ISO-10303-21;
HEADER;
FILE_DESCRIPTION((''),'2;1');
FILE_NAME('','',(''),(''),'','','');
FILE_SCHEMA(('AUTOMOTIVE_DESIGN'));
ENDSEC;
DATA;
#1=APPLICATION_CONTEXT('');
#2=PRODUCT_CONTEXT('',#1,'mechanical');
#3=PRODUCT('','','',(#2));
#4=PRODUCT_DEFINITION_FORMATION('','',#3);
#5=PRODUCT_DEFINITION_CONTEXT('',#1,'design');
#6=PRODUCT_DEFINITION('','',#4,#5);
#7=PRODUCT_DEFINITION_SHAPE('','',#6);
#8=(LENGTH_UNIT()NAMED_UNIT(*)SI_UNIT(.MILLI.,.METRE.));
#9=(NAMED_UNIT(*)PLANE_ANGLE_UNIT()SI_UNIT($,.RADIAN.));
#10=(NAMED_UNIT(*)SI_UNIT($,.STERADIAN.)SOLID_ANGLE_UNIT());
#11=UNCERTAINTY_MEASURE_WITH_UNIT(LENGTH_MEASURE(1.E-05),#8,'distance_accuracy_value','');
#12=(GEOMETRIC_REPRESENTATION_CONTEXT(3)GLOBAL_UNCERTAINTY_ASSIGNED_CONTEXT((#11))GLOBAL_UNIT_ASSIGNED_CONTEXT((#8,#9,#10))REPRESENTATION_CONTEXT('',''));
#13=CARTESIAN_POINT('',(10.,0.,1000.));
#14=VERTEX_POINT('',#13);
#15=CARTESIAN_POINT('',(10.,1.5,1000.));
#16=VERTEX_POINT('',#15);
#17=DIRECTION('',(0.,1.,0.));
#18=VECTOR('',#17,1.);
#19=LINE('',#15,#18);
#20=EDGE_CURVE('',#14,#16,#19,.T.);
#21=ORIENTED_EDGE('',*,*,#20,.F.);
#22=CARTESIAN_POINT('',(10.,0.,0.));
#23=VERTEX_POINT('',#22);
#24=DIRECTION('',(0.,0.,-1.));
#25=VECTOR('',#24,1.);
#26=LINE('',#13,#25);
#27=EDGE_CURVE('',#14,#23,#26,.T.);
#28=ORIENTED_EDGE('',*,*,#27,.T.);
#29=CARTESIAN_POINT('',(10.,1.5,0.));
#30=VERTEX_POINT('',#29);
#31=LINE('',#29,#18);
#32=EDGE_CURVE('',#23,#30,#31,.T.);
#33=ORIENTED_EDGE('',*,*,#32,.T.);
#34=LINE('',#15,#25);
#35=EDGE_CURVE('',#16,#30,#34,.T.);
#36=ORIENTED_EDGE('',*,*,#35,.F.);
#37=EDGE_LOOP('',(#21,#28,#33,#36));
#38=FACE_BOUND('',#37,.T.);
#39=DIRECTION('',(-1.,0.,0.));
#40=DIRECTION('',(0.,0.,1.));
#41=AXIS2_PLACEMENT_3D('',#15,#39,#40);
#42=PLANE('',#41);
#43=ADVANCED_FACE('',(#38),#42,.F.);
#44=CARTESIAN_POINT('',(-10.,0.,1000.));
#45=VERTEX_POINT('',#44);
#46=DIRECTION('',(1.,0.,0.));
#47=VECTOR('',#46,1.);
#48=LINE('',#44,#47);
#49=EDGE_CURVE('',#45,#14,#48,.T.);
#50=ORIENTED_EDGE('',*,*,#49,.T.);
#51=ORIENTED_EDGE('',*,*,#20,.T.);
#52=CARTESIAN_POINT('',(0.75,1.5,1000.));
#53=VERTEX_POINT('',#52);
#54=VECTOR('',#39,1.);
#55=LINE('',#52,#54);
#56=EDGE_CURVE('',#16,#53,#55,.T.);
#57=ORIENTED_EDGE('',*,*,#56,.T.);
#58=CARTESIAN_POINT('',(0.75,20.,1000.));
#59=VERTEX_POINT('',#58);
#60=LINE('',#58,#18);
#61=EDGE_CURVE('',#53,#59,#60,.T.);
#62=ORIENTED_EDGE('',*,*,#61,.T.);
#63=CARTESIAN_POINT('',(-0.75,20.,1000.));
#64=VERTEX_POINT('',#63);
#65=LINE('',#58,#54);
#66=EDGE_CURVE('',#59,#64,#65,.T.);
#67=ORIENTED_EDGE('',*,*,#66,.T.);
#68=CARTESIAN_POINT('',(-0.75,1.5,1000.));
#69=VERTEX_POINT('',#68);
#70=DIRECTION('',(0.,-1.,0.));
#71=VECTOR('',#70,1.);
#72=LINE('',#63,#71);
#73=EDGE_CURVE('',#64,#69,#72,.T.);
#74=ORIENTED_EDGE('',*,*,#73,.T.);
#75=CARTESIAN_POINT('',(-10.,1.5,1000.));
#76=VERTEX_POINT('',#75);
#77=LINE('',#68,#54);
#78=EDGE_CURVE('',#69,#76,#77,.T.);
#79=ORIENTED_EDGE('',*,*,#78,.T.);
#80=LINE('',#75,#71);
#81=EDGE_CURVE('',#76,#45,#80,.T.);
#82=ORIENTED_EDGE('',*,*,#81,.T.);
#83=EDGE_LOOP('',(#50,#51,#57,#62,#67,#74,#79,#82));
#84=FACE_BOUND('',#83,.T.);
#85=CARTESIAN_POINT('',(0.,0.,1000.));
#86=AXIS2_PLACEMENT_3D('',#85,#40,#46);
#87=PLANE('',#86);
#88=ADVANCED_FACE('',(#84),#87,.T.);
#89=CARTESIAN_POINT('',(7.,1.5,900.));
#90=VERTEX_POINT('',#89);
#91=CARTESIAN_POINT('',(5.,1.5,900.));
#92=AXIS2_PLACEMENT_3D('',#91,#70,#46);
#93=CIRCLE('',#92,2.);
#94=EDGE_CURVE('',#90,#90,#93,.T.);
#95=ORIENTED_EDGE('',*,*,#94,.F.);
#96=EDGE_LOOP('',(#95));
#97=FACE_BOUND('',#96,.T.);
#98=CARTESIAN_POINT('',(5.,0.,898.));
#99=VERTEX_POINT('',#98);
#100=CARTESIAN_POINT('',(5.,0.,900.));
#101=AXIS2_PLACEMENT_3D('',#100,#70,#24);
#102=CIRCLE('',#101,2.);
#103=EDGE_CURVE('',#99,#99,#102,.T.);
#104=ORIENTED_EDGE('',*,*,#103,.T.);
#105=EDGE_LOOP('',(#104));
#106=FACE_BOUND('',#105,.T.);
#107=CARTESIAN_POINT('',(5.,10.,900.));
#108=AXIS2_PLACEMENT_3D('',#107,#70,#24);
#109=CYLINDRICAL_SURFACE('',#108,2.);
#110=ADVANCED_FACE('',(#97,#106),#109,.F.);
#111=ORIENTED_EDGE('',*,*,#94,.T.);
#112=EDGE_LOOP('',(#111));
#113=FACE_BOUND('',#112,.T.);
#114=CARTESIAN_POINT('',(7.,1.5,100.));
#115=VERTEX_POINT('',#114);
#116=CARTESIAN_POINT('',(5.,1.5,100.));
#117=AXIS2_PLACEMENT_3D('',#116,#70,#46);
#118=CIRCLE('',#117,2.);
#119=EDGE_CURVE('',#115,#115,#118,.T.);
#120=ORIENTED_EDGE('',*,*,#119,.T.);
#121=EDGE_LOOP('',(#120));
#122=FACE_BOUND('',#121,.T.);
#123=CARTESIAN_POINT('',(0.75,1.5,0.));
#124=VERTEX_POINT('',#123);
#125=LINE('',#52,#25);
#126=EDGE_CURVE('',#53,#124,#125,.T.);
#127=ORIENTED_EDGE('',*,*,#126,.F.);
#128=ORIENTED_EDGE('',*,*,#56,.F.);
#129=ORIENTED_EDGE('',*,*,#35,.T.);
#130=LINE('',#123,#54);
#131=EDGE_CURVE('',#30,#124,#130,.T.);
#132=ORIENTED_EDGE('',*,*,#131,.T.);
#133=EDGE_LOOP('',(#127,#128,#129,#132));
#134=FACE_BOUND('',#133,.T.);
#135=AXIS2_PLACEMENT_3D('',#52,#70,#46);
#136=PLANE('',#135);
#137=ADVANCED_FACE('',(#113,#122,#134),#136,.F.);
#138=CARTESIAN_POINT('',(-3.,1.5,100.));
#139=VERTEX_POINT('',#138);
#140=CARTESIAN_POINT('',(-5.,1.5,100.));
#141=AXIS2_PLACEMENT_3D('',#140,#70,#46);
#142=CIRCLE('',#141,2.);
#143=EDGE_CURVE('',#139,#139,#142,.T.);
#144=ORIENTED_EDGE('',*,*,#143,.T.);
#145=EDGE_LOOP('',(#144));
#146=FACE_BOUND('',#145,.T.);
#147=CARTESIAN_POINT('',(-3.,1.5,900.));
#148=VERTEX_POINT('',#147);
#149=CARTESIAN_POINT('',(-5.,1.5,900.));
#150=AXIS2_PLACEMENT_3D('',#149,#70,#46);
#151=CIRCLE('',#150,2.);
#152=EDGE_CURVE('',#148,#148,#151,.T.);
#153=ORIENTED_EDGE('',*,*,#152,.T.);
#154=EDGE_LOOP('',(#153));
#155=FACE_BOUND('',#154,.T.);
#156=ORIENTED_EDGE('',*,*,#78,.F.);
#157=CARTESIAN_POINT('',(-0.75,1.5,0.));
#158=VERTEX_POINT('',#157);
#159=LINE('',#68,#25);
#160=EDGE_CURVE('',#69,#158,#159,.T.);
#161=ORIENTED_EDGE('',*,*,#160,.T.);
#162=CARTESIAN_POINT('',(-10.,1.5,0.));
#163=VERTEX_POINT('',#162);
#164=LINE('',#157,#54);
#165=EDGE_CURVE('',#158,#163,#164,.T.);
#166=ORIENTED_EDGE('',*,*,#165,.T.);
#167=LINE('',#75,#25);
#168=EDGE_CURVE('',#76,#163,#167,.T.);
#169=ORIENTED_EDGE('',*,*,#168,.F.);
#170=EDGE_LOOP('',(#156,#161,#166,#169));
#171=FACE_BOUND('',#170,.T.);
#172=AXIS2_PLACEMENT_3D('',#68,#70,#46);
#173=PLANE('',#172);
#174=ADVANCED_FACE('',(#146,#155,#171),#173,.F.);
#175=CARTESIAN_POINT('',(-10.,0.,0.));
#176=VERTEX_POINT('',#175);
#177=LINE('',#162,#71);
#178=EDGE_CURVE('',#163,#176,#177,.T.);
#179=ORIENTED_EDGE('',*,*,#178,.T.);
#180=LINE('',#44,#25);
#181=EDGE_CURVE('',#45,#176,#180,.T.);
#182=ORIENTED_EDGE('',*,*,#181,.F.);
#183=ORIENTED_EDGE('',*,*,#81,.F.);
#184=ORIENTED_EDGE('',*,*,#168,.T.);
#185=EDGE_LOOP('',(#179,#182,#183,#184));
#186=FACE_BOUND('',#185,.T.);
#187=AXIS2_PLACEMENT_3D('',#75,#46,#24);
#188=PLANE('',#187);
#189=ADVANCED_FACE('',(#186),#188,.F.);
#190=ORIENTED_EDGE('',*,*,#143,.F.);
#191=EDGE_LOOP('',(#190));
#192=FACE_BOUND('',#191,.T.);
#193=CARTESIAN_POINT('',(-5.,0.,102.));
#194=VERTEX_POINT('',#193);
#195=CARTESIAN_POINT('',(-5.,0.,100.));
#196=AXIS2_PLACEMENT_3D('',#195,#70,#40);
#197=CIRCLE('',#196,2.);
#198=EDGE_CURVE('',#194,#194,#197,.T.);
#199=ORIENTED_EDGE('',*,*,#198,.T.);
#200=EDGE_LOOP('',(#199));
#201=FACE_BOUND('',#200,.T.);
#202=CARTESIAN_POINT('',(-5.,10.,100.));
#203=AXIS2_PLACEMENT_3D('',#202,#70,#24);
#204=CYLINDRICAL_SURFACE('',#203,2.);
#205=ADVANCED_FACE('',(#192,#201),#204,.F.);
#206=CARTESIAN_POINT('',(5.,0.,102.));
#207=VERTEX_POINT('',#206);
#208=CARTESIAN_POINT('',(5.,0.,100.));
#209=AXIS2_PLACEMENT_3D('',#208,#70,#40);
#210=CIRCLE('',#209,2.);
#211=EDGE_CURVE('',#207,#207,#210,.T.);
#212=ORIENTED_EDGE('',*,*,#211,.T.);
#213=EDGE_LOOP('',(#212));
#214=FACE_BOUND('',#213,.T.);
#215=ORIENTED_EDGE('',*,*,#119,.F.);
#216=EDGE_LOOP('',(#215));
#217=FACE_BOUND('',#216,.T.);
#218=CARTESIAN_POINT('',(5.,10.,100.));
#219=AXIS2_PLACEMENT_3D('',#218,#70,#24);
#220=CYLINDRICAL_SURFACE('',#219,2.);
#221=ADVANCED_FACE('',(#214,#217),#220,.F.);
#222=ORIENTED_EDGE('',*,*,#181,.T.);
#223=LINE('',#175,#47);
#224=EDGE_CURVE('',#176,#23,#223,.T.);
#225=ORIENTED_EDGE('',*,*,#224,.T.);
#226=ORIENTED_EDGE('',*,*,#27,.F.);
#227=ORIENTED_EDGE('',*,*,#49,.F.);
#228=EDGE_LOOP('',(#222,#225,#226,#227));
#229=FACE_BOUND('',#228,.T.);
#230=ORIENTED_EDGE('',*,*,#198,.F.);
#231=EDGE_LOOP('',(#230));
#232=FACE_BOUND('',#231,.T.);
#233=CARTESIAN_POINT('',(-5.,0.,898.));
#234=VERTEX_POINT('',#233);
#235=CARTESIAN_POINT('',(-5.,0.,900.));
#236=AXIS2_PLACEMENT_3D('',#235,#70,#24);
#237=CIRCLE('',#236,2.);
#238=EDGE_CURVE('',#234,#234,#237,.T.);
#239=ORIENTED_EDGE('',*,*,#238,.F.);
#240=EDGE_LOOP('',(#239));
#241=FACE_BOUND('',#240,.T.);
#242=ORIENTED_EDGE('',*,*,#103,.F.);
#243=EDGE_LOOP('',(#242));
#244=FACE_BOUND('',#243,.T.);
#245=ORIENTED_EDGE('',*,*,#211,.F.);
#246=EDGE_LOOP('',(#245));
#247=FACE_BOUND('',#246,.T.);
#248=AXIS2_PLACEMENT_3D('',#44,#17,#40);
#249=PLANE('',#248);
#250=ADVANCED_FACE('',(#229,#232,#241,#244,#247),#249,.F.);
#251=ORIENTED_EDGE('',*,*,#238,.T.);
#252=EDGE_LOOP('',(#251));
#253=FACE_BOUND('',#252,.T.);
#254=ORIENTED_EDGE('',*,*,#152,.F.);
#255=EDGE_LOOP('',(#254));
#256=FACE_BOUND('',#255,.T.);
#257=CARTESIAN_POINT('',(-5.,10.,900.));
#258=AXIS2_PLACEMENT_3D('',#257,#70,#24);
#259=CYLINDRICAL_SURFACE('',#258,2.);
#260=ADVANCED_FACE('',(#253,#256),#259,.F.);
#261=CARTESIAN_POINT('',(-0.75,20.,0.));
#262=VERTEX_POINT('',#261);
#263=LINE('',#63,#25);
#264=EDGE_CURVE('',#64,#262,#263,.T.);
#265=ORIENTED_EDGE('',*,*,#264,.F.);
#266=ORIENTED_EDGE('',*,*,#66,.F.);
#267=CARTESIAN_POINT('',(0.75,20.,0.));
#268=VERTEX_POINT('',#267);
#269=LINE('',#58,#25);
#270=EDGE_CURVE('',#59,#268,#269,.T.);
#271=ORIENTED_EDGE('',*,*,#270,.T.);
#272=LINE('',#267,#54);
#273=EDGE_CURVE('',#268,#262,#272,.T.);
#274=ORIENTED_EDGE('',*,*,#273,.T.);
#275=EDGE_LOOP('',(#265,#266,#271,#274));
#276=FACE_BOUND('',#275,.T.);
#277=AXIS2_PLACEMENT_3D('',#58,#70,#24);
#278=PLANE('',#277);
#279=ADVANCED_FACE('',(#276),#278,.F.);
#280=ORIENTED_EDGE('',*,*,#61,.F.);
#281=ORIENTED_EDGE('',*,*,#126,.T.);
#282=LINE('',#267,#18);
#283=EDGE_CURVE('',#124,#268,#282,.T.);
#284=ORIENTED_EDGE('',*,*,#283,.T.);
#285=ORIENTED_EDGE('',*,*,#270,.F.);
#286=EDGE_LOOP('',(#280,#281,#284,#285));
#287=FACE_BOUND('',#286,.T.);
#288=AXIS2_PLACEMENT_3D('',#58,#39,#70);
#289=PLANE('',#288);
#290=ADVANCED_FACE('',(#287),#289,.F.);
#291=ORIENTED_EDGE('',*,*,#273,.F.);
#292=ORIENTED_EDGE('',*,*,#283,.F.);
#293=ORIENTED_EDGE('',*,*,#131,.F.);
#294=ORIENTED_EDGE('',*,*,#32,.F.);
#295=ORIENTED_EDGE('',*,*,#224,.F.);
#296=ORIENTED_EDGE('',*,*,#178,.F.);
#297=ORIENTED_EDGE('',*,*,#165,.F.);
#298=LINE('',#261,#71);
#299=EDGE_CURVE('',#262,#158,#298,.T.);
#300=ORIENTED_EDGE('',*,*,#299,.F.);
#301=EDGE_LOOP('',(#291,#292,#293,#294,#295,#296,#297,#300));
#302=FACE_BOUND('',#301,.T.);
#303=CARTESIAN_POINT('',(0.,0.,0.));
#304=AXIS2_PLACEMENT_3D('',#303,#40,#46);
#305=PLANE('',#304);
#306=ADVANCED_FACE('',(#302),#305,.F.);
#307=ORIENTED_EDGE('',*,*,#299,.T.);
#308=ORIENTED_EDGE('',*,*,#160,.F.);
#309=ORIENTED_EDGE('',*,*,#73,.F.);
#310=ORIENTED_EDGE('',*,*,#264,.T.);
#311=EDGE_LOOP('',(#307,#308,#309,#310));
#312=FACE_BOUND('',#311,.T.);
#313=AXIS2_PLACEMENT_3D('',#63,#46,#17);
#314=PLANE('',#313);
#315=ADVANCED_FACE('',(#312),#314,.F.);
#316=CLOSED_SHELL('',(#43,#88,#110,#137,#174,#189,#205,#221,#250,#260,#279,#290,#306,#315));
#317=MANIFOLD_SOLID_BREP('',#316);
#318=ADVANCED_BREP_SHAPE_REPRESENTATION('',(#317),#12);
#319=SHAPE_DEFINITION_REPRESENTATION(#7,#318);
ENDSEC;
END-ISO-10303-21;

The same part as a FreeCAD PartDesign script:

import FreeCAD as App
import Part
import Sketcher

V = App.Vector
Q = App.Units.Quantity


def add_polygon(sketch, points):
    """Adds a closed chain of lines whose ends are joined by coincident constraints."""
    first, n = sketch.GeometryCount, len(points)
    for a, b in zip(points, points[1:] + points[:1]):
        sketch.addGeometry(Part.LineSegment(App.Vector(*a, 0), App.Vector(*b, 0)), False)
    for i in range(n):
        sketch.addConstraint(Sketcher.Constraint("Coincident", first + i, 2, first + (i + 1) % n, 1))

doc = App.newDocument("Part")
body = doc.addObject("PartDesign::Body", "Body")

# Sketch on XY plane
sketch1 = body.newObject("Sketcher::SketchObject", "Sketch")
sketch1.AttachmentSupport = (doc.getObject("XY_Plane"), [""])
sketch1.MapMode = "FlatFace"
add_polygon(sketch1, [(0.8, 20), (-0.8, 20), (-0.8, 1.5), (-10, 1.5), (-10, 0), (10, 0), (10, 1.5), (0.8, 1.5)])  # lines 0-7
sketch1.addConstraint(Sketcher.Constraint("Horizontal", 0))
sketch1.addConstraint(Sketcher.Constraint("Vertical", 1))
sketch1.addConstraint(Sketcher.Constraint("Horizontal", 2))
sketch1.addConstraint(Sketcher.Constraint("Vertical", 3))
sketch1.addConstraint(Sketcher.Constraint("Horizontal", 4))
sketch1.addConstraint(Sketcher.Constraint("Vertical", 5))
sketch1.addConstraint(Sketcher.Constraint("Horizontal", 6))
sketch1.addConstraint(Sketcher.Constraint("Vertical", 7))
sketch1.addConstraint(Sketcher.Constraint("Symmetric", 3, 2, 4, 2, -1, 1))
sketch1.addConstraint(Sketcher.Constraint("Symmetric", 1, 2, 6, 2, -2))
sketch1.addConstraint(Sketcher.Constraint("Equal", 0, 3))
sketch1.addConstraint(Sketcher.Constraint("DistanceX", 4, 1, 4, 2, Q("20 mm")))
sketch1.addConstraint(Sketcher.Constraint("DistanceX", 0, 2, 0, 1, Q("1.5 mm")))
sketch1.addConstraint(Sketcher.Constraint("DistanceY", 1, 2, 1, 1, Q("18.5 mm")))
pad1 = body.newObject("PartDesign::Pad", "Pad")
pad1.Profile = sketch1
pad1.Length = 1000

# Sketch on XZ plane
sketch2 = body.newObject("Sketcher::SketchObject", "Sketch001")
sketch2.AttachmentSupport = (doc.getObject("XZ_Plane"), [""])
sketch2.MapMode = "FlatFace"
sketch2.addGeometry(Part.Circle(V(5, 900, 0), V(0, 0, 1), 2), False)
sketch2.addGeometry(Part.Circle(V(-5, 900, 0), V(0, 0, 1), 2), False)
sketch2.addGeometry(Part.Circle(V(5, 100, 0), V(0, 0, 1), 2), False)
sketch2.addGeometry(Part.Circle(V(-5, 100, 0), V(0, 0, 1), 2), False)
sketch2.addConstraint(Sketcher.Constraint("Equal", 0, 1))
sketch2.addConstraint(Sketcher.Constraint("Equal", 1, 2))
sketch2.addConstraint(Sketcher.Constraint("Equal", 2, 3))
sketch2.addConstraint(Sketcher.Constraint("Symmetric", 0, 3, 1, 3, -2))
sketch2.addConstraint(Sketcher.Constraint("Symmetric", 2, 3, 3, 3, -2))
sketch2.addConstraint(Sketcher.Constraint("Vertical", 0, 3, 2, 3))
sketch2.addConstraint(Sketcher.Constraint("Diameter", 0, Q("4 mm")))
sketch2.addConstraint(Sketcher.Constraint("DistanceX", -1, 1, 0, 3, Q("5 mm")))
sketch2.addConstraint(Sketcher.Constraint("DistanceY", -1, 1, 0, 3, Q("900 mm")))
sketch2.addConstraint(Sketcher.Constraint("DistanceY", -1, 1, 2, 3, Q("100 mm")))
pocket1 = body.newObject("PartDesign::Pocket", "Pocket")
pocket1.Profile = sketch2
pocket1.Length = 10

doc.recompute()
